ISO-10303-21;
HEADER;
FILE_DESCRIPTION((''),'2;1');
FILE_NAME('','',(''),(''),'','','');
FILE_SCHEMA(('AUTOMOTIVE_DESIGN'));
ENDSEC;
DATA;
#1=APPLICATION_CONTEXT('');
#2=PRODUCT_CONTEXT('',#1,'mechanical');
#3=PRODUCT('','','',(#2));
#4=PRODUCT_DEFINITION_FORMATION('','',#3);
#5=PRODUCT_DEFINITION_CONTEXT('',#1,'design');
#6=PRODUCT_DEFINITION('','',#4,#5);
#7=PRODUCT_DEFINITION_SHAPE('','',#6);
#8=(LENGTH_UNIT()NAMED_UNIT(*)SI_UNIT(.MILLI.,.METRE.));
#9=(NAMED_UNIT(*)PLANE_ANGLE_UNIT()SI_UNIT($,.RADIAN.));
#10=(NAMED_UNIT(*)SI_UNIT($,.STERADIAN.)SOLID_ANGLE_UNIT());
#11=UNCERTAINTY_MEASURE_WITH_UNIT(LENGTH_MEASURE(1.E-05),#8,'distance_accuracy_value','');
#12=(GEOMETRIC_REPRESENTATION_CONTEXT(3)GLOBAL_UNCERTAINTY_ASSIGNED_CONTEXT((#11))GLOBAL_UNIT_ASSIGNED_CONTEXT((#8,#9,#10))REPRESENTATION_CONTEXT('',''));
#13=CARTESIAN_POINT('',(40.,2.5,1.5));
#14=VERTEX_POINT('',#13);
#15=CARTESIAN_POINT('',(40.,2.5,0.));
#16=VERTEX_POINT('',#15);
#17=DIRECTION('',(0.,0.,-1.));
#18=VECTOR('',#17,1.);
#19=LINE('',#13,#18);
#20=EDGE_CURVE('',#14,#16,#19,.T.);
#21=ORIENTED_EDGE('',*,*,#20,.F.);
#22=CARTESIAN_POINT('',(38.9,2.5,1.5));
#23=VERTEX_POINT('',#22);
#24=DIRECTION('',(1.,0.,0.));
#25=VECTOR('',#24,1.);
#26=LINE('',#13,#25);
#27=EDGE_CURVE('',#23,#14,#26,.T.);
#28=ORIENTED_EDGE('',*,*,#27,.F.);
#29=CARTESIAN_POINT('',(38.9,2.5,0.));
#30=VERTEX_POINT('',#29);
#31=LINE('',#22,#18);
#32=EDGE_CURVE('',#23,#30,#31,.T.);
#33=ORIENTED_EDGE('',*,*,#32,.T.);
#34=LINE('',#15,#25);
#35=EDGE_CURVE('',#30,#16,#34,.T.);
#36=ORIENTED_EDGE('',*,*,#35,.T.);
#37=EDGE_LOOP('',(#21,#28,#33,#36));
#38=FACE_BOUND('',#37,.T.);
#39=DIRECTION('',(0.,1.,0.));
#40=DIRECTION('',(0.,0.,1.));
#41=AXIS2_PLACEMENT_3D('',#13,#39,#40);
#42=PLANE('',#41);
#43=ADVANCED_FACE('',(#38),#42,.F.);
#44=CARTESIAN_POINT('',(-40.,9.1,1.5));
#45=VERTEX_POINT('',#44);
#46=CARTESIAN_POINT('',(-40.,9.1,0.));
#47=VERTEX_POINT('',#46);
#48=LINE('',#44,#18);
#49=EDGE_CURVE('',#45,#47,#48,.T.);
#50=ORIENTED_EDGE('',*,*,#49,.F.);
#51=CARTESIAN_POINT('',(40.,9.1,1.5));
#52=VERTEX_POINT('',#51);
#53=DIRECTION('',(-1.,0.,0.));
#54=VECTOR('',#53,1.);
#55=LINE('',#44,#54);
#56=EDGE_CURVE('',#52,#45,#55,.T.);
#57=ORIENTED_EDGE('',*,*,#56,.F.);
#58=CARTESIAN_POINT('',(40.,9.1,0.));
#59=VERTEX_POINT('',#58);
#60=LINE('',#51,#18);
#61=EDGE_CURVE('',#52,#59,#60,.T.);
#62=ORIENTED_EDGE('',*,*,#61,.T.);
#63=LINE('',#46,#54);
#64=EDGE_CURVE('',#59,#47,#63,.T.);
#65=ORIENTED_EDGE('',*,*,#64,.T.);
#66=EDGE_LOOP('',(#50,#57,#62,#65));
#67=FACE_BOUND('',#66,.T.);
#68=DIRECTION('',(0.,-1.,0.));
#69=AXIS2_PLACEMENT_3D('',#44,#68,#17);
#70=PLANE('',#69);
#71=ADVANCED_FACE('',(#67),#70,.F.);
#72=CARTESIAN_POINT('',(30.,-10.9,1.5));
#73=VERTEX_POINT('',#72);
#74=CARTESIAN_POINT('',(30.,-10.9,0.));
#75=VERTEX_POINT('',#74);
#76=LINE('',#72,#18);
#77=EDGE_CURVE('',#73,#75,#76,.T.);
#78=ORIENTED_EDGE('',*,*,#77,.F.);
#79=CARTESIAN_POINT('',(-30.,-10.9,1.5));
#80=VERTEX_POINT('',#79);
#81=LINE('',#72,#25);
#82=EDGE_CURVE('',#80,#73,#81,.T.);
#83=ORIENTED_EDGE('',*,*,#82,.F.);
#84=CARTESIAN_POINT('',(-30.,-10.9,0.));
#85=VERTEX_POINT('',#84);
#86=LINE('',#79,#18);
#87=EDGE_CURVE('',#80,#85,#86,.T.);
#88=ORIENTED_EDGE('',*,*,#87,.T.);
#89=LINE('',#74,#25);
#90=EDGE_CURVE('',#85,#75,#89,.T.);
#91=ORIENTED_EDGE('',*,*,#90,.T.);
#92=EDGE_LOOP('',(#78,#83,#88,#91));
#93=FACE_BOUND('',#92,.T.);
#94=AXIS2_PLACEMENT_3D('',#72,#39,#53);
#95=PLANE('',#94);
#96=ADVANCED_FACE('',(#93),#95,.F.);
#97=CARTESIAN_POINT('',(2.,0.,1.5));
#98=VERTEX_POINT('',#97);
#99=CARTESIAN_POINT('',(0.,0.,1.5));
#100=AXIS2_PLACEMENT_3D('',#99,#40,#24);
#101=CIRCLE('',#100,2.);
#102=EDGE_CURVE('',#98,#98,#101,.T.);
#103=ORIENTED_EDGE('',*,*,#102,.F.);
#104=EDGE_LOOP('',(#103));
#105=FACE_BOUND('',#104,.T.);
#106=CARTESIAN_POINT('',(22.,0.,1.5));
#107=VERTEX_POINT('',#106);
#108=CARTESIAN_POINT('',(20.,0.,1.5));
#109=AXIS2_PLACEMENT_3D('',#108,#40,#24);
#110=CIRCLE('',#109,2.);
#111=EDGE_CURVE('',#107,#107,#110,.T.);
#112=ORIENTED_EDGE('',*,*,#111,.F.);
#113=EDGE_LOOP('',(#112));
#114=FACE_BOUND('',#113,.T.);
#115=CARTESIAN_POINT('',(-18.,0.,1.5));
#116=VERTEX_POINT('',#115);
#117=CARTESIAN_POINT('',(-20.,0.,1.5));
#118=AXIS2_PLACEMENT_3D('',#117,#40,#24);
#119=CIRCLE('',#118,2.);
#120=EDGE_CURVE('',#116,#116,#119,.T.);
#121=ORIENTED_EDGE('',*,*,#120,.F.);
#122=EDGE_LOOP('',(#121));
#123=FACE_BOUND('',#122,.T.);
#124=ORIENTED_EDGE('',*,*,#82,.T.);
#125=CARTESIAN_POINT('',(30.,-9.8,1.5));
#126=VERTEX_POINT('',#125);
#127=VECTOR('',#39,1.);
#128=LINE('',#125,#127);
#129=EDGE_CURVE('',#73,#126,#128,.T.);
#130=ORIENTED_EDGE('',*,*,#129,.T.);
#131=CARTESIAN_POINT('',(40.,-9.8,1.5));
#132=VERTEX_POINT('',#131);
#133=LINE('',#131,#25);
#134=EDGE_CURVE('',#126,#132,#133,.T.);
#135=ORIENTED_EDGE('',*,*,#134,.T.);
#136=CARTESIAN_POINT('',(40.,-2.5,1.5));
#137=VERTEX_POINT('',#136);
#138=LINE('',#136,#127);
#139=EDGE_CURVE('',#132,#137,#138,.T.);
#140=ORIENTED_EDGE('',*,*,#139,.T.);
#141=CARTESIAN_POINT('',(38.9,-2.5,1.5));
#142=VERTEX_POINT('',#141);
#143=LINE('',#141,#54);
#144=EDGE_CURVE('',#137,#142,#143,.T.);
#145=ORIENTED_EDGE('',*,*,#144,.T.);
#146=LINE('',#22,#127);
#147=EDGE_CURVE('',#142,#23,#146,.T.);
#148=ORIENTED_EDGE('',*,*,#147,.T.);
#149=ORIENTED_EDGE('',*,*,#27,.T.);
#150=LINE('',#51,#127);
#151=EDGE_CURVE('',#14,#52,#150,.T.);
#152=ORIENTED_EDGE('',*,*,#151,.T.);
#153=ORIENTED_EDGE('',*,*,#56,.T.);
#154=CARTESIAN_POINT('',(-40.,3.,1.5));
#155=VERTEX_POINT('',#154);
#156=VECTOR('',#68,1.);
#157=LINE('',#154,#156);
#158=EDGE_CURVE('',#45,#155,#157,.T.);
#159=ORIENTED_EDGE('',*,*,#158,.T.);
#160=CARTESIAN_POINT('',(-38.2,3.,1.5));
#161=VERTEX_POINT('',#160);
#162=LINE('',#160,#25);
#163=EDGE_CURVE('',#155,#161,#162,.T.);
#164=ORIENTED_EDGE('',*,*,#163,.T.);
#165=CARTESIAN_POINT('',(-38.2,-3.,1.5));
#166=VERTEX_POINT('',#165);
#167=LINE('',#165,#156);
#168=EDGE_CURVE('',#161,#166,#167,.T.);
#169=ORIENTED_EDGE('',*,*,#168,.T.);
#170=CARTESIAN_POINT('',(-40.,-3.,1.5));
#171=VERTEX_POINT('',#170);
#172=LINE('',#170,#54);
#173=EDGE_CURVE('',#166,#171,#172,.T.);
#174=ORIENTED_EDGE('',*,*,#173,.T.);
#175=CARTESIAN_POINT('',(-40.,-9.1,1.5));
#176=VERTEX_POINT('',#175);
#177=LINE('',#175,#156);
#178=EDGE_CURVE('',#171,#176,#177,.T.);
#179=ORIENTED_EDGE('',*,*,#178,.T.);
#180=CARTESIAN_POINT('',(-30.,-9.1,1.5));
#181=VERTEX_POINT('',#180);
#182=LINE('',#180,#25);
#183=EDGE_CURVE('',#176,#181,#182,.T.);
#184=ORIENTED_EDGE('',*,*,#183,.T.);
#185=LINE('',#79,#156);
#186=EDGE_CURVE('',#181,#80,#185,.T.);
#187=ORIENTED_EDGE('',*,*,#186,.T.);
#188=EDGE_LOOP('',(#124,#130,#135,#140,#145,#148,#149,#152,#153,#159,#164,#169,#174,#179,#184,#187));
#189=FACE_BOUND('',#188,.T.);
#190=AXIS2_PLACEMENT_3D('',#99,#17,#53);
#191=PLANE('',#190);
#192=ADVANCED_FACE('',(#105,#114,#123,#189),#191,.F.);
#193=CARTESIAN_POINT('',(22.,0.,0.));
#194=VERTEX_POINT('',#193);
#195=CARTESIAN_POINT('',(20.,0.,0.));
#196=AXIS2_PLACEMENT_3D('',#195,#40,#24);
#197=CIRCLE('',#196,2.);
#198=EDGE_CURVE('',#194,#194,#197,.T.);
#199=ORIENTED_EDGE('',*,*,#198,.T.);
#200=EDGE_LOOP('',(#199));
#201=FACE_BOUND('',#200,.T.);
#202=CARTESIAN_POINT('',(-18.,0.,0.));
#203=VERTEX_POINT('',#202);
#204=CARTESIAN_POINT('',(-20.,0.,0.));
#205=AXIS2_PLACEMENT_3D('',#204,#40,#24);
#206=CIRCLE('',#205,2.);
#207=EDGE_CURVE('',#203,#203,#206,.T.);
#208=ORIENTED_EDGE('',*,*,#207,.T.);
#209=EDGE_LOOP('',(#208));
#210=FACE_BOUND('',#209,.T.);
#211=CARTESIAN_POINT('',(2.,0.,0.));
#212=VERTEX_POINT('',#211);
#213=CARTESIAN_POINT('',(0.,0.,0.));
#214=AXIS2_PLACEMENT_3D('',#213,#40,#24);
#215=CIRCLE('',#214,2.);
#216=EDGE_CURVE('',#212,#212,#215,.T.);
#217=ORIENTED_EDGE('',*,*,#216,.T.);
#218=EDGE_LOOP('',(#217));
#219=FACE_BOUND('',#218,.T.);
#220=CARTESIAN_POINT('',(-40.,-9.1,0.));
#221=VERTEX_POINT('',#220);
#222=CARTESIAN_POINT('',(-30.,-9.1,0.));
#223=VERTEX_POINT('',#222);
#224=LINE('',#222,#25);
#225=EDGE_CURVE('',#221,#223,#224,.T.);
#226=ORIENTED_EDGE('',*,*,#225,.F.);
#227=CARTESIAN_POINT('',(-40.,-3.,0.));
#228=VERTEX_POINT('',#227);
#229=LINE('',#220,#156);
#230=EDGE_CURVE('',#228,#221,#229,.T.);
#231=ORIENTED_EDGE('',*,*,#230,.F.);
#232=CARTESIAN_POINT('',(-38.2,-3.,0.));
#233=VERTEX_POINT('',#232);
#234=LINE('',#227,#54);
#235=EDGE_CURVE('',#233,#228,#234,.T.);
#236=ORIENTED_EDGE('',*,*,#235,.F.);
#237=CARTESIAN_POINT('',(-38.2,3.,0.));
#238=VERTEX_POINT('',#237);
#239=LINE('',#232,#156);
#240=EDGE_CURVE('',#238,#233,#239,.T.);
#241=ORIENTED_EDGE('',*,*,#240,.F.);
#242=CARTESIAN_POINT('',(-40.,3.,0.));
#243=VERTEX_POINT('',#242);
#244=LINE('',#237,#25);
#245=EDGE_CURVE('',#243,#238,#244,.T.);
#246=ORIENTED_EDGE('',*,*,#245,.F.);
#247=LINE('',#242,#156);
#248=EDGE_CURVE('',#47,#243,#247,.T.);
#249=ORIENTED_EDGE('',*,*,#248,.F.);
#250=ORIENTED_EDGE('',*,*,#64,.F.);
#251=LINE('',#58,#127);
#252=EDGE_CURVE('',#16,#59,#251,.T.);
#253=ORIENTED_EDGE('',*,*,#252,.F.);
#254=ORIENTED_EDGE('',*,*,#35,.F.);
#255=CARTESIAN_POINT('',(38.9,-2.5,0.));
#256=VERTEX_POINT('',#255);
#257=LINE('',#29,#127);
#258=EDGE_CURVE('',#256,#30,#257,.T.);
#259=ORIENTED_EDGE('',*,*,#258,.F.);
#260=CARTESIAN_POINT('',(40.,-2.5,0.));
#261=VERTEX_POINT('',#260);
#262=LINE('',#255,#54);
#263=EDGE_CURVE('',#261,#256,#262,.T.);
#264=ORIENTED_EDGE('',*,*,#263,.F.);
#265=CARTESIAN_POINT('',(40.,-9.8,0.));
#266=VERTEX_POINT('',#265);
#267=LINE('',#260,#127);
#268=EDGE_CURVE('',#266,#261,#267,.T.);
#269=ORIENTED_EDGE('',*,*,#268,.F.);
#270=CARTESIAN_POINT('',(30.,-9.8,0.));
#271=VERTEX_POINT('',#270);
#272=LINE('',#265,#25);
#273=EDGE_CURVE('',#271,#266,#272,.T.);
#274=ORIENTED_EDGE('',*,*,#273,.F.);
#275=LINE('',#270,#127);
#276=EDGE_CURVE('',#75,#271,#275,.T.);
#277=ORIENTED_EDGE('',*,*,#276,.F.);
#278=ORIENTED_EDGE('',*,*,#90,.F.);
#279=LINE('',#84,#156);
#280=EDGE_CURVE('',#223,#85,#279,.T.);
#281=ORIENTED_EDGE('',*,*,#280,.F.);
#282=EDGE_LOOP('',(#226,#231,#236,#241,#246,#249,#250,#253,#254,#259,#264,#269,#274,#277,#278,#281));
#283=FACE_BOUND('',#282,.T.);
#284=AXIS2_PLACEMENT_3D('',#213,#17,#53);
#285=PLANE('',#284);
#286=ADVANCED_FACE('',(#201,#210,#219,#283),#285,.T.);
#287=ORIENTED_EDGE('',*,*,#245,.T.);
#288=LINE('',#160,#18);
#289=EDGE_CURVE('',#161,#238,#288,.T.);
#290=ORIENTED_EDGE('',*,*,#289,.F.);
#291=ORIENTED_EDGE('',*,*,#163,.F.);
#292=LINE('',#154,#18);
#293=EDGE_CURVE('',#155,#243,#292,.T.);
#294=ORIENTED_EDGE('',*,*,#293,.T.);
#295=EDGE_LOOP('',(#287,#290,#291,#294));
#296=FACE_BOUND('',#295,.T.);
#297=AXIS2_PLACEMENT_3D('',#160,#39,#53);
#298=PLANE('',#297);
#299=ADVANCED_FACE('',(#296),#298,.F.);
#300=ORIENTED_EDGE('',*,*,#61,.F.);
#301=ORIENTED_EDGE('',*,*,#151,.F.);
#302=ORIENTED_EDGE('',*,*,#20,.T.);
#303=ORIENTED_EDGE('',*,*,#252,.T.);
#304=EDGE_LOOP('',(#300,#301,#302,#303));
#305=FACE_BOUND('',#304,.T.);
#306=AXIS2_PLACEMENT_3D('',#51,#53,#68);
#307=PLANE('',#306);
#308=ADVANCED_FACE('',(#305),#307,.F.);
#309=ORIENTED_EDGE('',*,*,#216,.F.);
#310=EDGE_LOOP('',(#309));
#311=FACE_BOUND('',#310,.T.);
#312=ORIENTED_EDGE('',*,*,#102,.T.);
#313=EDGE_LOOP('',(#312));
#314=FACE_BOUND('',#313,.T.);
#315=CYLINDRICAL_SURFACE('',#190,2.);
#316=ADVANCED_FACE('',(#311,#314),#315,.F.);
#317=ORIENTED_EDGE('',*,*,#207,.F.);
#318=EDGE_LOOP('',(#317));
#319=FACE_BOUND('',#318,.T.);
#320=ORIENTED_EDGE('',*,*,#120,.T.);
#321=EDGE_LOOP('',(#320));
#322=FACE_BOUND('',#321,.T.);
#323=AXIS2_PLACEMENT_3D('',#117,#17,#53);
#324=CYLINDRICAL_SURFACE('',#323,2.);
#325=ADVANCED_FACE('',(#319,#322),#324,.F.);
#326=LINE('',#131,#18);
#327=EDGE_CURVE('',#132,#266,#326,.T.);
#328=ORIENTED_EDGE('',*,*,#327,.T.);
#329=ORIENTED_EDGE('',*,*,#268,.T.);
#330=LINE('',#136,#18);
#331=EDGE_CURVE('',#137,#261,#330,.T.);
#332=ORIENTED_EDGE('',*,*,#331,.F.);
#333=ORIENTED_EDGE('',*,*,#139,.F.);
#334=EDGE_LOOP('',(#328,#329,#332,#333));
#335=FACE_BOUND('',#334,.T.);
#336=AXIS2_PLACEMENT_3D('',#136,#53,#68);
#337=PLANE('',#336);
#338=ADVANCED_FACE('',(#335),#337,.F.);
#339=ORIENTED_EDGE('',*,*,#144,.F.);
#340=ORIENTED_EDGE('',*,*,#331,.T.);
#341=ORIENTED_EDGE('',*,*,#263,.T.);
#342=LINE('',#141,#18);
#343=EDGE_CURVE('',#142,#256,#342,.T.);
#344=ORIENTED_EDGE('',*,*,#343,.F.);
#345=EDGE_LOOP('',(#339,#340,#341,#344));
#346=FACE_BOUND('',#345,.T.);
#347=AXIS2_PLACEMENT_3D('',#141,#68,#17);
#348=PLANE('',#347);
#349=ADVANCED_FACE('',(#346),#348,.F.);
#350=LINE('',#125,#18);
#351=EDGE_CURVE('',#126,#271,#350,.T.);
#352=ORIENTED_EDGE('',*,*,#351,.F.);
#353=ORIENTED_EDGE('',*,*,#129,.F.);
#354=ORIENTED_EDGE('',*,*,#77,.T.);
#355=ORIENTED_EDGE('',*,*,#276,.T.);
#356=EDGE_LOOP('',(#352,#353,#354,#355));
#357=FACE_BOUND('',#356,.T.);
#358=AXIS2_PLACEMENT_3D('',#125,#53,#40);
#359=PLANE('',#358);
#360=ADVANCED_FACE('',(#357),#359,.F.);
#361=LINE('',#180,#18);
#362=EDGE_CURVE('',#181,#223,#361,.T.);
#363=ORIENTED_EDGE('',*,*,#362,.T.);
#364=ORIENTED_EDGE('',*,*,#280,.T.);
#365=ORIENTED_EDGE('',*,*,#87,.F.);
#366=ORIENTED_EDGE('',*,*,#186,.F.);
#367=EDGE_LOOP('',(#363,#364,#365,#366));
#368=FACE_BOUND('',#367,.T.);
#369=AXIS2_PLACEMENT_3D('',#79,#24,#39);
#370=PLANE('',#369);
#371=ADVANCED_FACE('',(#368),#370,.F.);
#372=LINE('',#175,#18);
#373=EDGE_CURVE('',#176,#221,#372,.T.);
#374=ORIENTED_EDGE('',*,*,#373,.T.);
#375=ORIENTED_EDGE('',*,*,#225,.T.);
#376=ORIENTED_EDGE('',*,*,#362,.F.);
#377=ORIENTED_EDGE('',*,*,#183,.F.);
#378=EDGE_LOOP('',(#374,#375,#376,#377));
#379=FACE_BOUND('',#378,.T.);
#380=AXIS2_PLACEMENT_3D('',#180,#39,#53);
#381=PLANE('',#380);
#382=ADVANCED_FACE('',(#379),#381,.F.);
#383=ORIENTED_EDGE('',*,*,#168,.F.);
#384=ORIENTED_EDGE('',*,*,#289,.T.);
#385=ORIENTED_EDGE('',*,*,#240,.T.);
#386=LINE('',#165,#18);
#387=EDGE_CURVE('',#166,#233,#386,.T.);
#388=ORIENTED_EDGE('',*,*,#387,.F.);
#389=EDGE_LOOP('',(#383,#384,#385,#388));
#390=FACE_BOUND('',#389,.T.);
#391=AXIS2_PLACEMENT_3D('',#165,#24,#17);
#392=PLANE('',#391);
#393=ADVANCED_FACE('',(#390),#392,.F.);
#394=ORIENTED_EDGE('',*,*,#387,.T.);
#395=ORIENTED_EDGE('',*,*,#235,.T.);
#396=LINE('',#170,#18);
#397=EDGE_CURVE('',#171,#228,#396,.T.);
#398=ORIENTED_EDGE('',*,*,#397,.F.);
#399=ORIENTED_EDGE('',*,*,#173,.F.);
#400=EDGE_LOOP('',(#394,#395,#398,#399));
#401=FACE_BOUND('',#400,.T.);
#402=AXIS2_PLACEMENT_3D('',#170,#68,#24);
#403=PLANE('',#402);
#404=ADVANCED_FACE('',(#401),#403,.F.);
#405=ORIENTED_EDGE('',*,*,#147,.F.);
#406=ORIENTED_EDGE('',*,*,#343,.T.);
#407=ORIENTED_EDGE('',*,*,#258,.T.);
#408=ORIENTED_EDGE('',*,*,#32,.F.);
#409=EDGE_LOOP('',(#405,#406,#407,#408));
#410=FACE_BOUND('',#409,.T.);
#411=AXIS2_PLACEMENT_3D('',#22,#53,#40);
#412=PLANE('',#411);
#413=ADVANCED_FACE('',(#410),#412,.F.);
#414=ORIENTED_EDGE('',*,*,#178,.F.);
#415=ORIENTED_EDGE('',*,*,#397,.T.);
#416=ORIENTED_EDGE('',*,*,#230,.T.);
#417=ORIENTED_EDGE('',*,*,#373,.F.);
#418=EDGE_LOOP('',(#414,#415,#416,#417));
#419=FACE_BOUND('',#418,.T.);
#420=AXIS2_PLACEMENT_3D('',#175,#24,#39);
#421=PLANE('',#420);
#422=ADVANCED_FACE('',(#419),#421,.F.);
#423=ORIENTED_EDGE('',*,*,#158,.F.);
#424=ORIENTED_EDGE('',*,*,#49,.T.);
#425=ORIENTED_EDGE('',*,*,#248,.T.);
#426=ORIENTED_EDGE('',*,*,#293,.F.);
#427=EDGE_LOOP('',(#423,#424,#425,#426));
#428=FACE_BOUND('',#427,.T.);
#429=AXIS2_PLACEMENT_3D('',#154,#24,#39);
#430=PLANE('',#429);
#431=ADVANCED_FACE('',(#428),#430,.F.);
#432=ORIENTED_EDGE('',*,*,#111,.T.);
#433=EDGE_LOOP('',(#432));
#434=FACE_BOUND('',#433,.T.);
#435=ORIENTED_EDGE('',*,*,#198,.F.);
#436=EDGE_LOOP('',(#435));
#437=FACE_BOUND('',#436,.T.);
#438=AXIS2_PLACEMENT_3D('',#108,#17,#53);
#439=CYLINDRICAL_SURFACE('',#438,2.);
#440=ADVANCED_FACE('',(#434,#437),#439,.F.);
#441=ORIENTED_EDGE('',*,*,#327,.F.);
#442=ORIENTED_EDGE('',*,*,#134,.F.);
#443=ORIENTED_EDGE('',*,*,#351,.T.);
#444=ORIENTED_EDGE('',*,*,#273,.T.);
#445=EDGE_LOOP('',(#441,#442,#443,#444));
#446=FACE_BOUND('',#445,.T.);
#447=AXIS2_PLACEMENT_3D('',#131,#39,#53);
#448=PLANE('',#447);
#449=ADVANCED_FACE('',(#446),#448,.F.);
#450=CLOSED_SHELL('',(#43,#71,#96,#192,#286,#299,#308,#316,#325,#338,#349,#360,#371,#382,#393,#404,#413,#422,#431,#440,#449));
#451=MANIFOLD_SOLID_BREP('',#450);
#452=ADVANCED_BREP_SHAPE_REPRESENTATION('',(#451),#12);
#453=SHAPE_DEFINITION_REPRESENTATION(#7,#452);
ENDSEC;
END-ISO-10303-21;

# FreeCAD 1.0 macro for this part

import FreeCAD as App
import Part
import Sketcher
from FreeCAD import Vector


def add_polygon(sketch, points):
    """Adds a closed chain of lines whose ends are joined by coincident constraints."""
    first, n = sketch.GeometryCount, len(points)
    for a, b in zip(points, points[1:] + points[:1]):
        sketch.addGeometry(Part.LineSegment(App.Vector(*a, 0), App.Vector(*b, 0)), False)
    for i in range(n):
        sketch.addConstraint(Sketcher.Constraint("Coincident", first + i, 2, first + (i + 1) % n, 1))

doc = App.newDocument("Part")
params = doc.addObject("Spreadsheet::Sheet", "Params")
for row, (alias, value) in enumerate([
    ("sketch1_diameter", "4 mm"),
    ("sketch1_width", "80 mm"),
    ("sketch1_width2", "10 mm"),
    ("sketch1_height", "6 mm"),
    ("sketch1_height2", "5 mm"),
    ("pad1_length", "1.5 mm"),
], start=1):
    params.set(f"A{row}", alias)
    params.set(f"B{row}", "=" + value)
    params.setAlias(f"B{row}", alias)

body = doc.addObject("PartDesign::Body", "Body")

# Sketch on XY plane
sketch1 = body.newObject("Sketcher::SketchObject", "Sketch")
sketch1.AttachmentSupport = (doc.getObject("XY_Plane"), [""])
sketch1.MapMode = "FlatFace"
add_polygon(sketch1, [(40, 9.1), (-40, 9.1), (-40, 3), (-38.2, 3), (-38.2, -3), (-40, -3), (-40, -9.1), (-30, -9.1), (-30, -10.9), (30, -10.9), (30, -9.8), (40, -9.8), (40, -2.5), (38.9, -2.5), (38.9, 2.5), (40, 2.5)])  # lines 0-15
sketch1.addGeometry(Part.Circle(Vector(20, 0, 0), Vector(0, 0, 1), 2), False)  # 16
sketch1.addGeometry(Part.Circle(Vector(0, 0, 0), Vector(0, 0, 1), 2), False)  # 17
sketch1.addGeometry(Part.Circle(Vector(-20, 0, 0), Vector(0, 0, 1), 2), False)  # 18
sketch1.addConstraint([
    Sketcher.Constraint("Horizontal", 0),
    Sketcher.Constraint("Vertical", 1),
    Sketcher.Constraint("Horizontal", 2),
    Sketcher.Constraint("Vertical", 3),
    Sketcher.Constraint("Horizontal", 4),
    Sketcher.Constraint("Vertical", 5),
    Sketcher.Constraint("Horizontal", 6),
    Sketcher.Constraint("Vertical", 7),
    Sketcher.Constraint("Horizontal", 8),
    Sketcher.Constraint("Vertical", 9),
    Sketcher.Constraint("Horizontal", 10),
    Sketcher.Constraint("Vertical", 11),
    Sketcher.Constraint("Horizontal", 12),
    Sketcher.Constraint("Vertical", 13),
    Sketcher.Constraint("Horizontal", 14),
    Sketcher.Constraint("Vertical", 15),
    Sketcher.Constraint("Coincident", 17, 3, -1, 1),
    Sketcher.Constraint("Equal", 16, 17),
    Sketcher.Constraint("Equal", 17, 18),
    Sketcher.Constraint("Symmetric", 16, 3, 18, 3, -1, 1),
    Sketcher.Constraint("Symmetric", 5, 2, 15, 2, -1, 1),
    Sketcher.Constraint("Symmetric", 1, 2, 4, 2, -1),
    Sketcher.Constraint("Symmetric", 11, 2, 14, 2, -1),
    Sketcher.Constraint("PointOnObject", 16, 3, -1),
    Sketcher.Constraint("Equal", 6, 10),
    Sketcher.Constraint("Equal", 4, 7),
    Sketcher.Constraint("Equal", 14, 9),
    Sketcher.Constraint("Diameter", 16, 4.0),
    Sketcher.Constraint("DistanceX", 0, 2, 0, 1, 80.0),
    Sketcher.Constraint("DistanceX", 6, 1, 6, 2, 10.0),
    Sketcher.Constraint("DistanceY", 3, 2, 3, 1, 6.0),
    Sketcher.Constraint("DistanceY", 13, 1, 13, 2, 5.0),
    Sketcher.Constraint("DistanceX", 2, 1, 2, 2, 1.8),
    Sketcher.Constraint("DistanceX", 12, 2, 12, 1, 1.1),
    Sketcher.Constraint("DistanceY", 1, 2, 1, 1, 6.1),
    Sketcher.Constraint("DistanceX", -1, 1, 16, 3, 20.0),
])
sketch1.setExpression("Constraints[43]", "Params.sketch1_diameter")
sketch1.setExpression("Constraints[44]", "Params.sketch1_width")
sketch1.setExpression("Constraints[45]", "Params.sketch1_width2")
sketch1.setExpression("Constraints[46]", "Params.sketch1_height")
sketch1.setExpression("Constraints[47]", "Params.sketch1_height2")
pad1 = body.newObject("PartDesign::Pad", "Pad")
pad1.Profile = sketch1
pad1.setExpression("Length", "Params.pad1_length")

doc.recompute()
